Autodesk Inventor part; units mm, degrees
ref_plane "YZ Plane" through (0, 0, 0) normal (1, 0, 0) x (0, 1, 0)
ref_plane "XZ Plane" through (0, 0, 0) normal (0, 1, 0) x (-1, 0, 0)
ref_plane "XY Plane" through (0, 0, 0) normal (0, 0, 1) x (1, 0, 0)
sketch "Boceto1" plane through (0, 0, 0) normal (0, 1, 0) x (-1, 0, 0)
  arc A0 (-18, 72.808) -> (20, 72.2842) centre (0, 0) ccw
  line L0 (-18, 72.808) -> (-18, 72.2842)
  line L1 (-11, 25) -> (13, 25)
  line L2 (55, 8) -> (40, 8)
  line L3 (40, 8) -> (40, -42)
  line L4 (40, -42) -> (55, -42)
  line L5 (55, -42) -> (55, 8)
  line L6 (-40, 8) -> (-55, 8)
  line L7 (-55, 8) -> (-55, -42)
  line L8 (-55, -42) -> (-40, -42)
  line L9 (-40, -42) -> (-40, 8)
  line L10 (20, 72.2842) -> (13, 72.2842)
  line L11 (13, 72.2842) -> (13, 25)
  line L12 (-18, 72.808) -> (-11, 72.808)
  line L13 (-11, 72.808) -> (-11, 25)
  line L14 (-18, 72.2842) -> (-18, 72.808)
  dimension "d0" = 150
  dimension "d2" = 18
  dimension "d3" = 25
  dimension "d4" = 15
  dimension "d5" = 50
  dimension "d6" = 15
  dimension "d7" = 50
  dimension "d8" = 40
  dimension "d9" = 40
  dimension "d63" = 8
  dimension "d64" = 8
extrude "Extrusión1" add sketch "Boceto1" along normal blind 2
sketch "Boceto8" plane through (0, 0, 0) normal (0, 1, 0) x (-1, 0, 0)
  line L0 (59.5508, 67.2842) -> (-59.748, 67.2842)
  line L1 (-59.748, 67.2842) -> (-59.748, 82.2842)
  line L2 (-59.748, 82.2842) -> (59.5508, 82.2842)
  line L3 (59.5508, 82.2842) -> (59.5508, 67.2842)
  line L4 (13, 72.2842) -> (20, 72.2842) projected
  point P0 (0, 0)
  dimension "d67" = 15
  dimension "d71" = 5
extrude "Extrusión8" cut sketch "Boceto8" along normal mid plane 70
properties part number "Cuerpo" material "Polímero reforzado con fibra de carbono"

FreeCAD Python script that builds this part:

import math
import FreeCAD as App
import Part
import Sketcher
from FreeCAD import Vector
Q = App.Units.Quantity

doc = App.newDocument("Part")
body = doc.addObject("PartDesign::Body", "Body")

sketch1 = body.newObject("Sketcher::SketchObject", "Sketch")
sketch1.AttachmentSupport = (doc.getObject("XZ_Plane"), [""])
sketch1.MapMode = "FlatFace"
sketch1.addGeometry([
    Part.LineSegment(Vector(11, 73, 0), Vector(18, 73, 0)),
    Part.ArcOfCircle(Part.Circle(Vector(0, 0, 0), Vector(0, 0, 1), 75), math.radians(105), math.radians(436)),
    Part.LineSegment(Vector(-20, 72, 0), Vector(-13, 72, 0)),
    Part.LineSegment(Vector(-13, 72, 0), Vector(-13, 25, 0)),
    Part.LineSegment(Vector(-13, 25, 0), Vector(11, 25, 0)),
    Part.LineSegment(Vector(11, 25, 0), Vector(11, 73, 0)),
    Part.LineSegment(Vector(55, 8, 0), Vector(40, 8, 0)),
    Part.LineSegment(Vector(40, 8, 0), Vector(40, -42, 0)),
    Part.LineSegment(Vector(40, -42, 0), Vector(55, -42, 0)),
    Part.LineSegment(Vector(55, -42, 0), Vector(55, 8, 0)),
    Part.LineSegment(Vector(-40, 8, 0), Vector(-55, 8, 0)),
    Part.LineSegment(Vector(-55, 8, 0), Vector(-55, -42, 0)),
    Part.LineSegment(Vector(-55, -42, 0), Vector(-40, -42, 0)),
    Part.LineSegment(Vector(-40, -42, 0), Vector(-40, 8, 0)),
], False)
sketch1.addConstraint([
    Sketcher.Constraint("Coincident", 0, 2, 1, 2),
    Sketcher.Constraint("Coincident", 1, 1, 2, 1),
    Sketcher.Constraint("Coincident", 2, 2, 3, 1),
    Sketcher.Constraint("Coincident", 3, 2, 4, 1),
    Sketcher.Constraint("Coincident", 4, 2, 5, 1),
    Sketcher.Constraint("Coincident", 5, 2, 0, 1),
    Sketcher.Constraint("Coincident", 6, 2, 7, 1),
    Sketcher.Constraint("Coincident", 7, 2, 8, 1),
    Sketcher.Constraint("Coincident", 8, 2, 9, 1),
    Sketcher.Constraint("Coincident", 9, 2, 6, 1),
    Sketcher.Constraint("Coincident", 10, 2, 11, 1),
    Sketcher.Constraint("Coincident", 11, 2, 12, 1),
    Sketcher.Constraint("Coincident", 12, 2, 13, 1),
    Sketcher.Constraint("Coincident", 13, 2, 10, 1),
    Sketcher.Constraint("Horizontal", 0),
    Sketcher.Constraint("Horizontal", 2),
    Sketcher.Constraint("Vertical", 3),
    Sketcher.Constraint("Horizontal", 4),
    Sketcher.Constraint("Vertical", 5),
    Sketcher.Constraint("Horizontal", 6),
    Sketcher.Constraint("Vertical", 7),
    Sketcher.Constraint("Horizontal", 8),
    Sketcher.Constraint("Vertical", 9),
    Sketcher.Constraint("Horizontal", 10),
    Sketcher.Constraint("Vertical", 11),
    Sketcher.Constraint("Horizontal", 12),
    Sketcher.Constraint("Vertical", 13),
    Sketcher.Constraint("Coincident", 1, 3, -1, 1),
    Sketcher.Constraint("Symmetric", 9, 2, 10, 2, -2),
    Sketcher.Constraint("Symmetric", 7, 2, 12, 2, -2),
    Sketcher.Constraint("Equal", 0, 2),
    Sketcher.Constraint("Radius", 1, Q("75 mm")),
    Sketcher.Constraint("DistanceX", 6, 2, 6, 1, Q("15 mm")),
    Sketcher.Constraint("DistanceY", 7, 2, 7, 1, Q("50 mm")),
    Sketcher.Constraint("DistanceX", -1, 1, 0, 2, Q("18 mm")),
    Sketcher.Constraint("DistanceY", -1, 1, 3, 2, Q("25 mm")),
    Sketcher.Constraint("DistanceX", -1, 1, 6, 2, Q("40 mm")),
    Sketcher.Constraint("DistanceY", -1, 1, 6, 2, Q("8 mm")),
    Sketcher.Constraint("DistanceX", 0, 1, 0, 2, Q("7 mm")),
    Sketcher.Constraint("DistanceX", 4, 1, 4, 2, Q("24 mm")),
])
pad1 = body.newObject("PartDesign::Pad", "Pad")
pad1.Profile = sketch1
pad1.Length = 2
pad1.Reversed = True

sketch2 = body.newObject("Sketcher::SketchObject", "Sketch001")
sketch2.AttachmentSupport = (doc.getObject("XZ_Plane"), [""])
sketch2.MapMode = "FlatFace"
sketch2.addGeometry([
    Part.LineSegment(Vector(60, 67, 0), Vector(-60, 67, 0)),
    Part.LineSegment(Vector(-60, 67, 0), Vector(-60, 82, 0)),
    Part.LineSegment(Vector(-60, 82, 0), Vector(60, 82, 0)),
    Part.LineSegment(Vector(60, 82, 0), Vector(60, 67, 0)),
], False)
sketch2.addConstraint([
    Sketcher.Constraint("Coincident", 0, 2, 1, 1),
    Sketcher.Constraint("Coincident", 1, 2, 2, 1),
    Sketcher.Constraint("Coincident", 2, 2, 3, 1),
    Sketcher.Constraint("Coincident", 3, 2, 0, 1),
    Sketcher.Constraint("Horizontal", 0),
    Sketcher.Constraint("Vertical", 1),
    Sketcher.Constraint("Horizontal", 2),
    Sketcher.Constraint("Vertical", 3),
    Sketcher.Constraint("DistanceY", 1, 1, 1, 2, Q("15 mm")),
    Sketcher.Constraint("DistanceX", 0, 2, 0, 1, Q("119.2988 mm")),
    Sketcher.Constraint("DistanceX", -1, 1, 2, 2, Q("59.748 mm")),
    Sketcher.Constraint("DistanceY", -1, 1, 0, 2, Q("67.2842 mm")),
])
pocket1 = body.newObject("PartDesign::Pocket", "Pocket")
pocket1.Profile = sketch2
pocket1.Length = 70
pocket1.Midplane = True

doc.recompute()
